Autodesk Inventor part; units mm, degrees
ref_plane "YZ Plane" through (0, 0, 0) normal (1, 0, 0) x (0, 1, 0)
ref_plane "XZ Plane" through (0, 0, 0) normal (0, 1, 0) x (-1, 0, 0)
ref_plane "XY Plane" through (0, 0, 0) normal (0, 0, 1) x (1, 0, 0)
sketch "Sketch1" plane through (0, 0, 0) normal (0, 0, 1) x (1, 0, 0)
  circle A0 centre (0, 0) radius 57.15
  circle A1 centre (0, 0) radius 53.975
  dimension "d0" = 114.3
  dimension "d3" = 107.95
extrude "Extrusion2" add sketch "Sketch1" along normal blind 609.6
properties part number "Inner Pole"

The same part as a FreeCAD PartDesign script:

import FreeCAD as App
import Part
import Sketcher
Q = App.Units.Quantity

doc = App.newDocument("Part")
body = doc.addObject("PartDesign::Body", "Body")

# Sketch on XY plane
sketch1 = doc.addObject("Sketcher::SketchObject", "Sketch")
body.addObject(sketch1)
sketch1.AttachmentSupport = (doc.XY_Plane, [""])
sketch1.MapMode = "FlatFace"
sketch1.addGeometry([
    Part.Circle(App.Vector(0, 0, 0), App.Vector(0, 0, 1), 57),
    Part.Circle(App.Vector(0, 0, 0), App.Vector(0, 0, 1), 54),
], False)
sketch1.addConstraint([
    Sketcher.Constraint("Coincident", 0, 3, -1, 1),
    Sketcher.Constraint("Coincident", 1, 3, -1, 1),
    Sketcher.Constraint("Diameter", 0, Q("4.5 in")),
    Sketcher.Constraint("Diameter", 1, Q("4.25 in")),
])
pad1 = doc.addObject("PartDesign::Pad", "Pad")
body.addObject(pad1)
pad1.Profile = sketch1
pad1.Length = Q("24 in")

doc.recompute()
